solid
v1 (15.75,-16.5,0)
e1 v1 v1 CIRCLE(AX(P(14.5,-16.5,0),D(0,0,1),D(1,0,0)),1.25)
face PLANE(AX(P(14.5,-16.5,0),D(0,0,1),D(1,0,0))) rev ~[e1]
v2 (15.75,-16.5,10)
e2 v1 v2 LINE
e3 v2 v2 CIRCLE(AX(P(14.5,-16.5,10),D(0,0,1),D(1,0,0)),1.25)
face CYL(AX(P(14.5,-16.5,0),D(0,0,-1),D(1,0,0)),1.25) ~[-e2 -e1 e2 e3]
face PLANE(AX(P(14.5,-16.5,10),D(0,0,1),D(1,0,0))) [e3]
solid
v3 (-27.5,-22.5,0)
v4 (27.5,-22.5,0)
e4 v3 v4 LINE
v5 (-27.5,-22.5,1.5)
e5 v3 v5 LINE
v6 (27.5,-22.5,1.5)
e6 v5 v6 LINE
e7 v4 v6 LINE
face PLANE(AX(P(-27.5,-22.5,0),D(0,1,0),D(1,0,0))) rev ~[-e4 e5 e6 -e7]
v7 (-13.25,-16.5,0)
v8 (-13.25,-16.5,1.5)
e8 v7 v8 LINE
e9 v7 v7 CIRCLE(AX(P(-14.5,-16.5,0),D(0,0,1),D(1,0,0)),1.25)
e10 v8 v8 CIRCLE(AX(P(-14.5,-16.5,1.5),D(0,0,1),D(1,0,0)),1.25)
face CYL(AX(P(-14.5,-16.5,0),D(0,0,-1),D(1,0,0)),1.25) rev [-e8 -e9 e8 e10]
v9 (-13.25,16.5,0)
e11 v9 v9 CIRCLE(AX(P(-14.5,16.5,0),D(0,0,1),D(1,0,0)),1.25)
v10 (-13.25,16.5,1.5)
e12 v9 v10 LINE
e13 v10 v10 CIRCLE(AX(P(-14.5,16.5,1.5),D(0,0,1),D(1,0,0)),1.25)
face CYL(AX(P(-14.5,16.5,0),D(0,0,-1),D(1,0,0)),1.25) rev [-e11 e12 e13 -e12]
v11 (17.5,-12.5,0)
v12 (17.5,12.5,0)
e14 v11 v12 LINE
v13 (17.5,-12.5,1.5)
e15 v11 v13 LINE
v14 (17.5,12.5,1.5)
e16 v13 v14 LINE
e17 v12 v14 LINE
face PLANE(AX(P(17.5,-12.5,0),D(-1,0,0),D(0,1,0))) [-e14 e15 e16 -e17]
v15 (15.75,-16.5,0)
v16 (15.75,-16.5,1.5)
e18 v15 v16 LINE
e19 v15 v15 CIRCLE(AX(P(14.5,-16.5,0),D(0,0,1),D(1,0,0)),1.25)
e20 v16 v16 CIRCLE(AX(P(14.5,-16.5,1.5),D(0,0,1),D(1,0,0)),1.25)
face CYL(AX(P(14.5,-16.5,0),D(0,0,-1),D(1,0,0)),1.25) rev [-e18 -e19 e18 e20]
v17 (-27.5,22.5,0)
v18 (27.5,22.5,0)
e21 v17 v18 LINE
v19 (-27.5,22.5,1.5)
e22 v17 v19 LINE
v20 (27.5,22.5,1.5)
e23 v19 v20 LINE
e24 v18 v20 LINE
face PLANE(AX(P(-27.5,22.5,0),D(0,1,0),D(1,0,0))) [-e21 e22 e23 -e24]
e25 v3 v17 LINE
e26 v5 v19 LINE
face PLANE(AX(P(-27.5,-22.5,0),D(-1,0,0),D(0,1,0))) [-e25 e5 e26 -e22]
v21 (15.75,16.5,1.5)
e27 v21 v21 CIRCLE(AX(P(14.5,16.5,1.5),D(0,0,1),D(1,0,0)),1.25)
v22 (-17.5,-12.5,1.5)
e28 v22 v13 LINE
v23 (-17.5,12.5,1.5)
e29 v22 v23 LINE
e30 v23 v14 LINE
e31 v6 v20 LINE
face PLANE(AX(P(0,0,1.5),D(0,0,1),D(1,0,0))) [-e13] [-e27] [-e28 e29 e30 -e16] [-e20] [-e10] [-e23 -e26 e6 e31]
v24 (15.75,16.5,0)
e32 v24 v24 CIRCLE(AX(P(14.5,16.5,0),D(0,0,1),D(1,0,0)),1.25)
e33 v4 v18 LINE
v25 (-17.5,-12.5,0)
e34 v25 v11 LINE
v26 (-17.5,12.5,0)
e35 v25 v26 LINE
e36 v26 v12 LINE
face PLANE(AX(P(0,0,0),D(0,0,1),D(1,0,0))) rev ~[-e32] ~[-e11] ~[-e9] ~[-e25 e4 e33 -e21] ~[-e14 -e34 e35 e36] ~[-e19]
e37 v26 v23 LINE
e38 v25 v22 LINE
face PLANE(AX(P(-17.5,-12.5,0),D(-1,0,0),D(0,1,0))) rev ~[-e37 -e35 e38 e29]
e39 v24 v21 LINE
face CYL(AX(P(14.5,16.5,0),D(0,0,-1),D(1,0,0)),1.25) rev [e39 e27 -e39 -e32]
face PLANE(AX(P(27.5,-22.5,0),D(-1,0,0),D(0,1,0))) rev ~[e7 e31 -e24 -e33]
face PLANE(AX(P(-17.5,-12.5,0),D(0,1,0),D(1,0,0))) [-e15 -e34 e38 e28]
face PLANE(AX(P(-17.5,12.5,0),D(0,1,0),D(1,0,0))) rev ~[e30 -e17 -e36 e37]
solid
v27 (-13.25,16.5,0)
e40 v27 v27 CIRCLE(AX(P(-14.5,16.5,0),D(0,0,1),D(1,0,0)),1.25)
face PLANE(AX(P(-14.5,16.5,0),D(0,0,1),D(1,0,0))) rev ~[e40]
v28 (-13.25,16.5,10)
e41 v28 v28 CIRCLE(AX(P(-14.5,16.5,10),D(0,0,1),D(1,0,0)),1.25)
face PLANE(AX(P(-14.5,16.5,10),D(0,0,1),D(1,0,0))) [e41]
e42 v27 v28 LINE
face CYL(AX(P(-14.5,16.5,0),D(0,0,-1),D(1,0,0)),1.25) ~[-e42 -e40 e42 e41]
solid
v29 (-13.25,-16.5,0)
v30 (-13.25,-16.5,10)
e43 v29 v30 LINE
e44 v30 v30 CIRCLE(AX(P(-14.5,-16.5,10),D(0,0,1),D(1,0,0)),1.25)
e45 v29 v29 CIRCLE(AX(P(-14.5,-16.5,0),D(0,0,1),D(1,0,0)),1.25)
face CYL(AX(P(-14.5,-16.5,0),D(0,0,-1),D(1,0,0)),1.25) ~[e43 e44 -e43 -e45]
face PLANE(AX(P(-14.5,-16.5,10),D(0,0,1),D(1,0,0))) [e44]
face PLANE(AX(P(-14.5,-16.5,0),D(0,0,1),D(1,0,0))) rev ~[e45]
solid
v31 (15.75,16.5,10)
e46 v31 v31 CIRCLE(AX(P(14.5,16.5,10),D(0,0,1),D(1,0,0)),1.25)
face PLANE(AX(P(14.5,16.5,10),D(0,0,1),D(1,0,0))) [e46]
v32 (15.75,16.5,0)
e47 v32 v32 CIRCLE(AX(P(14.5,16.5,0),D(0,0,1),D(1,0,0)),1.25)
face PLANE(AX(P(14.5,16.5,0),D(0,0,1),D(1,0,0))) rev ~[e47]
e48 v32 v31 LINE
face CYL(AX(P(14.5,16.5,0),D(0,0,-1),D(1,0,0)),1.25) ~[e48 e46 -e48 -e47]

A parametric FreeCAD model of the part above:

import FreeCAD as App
import Part
import Sketcher
from FreeCAD import Vector

doc = App.newDocument("Part")
params = doc.addObject("Spreadsheet::Sheet", "Params")
for row, (alias, value) in enumerate([
    ("sketch1_diameter", "2.5 mm"),
    ("pad1_length", "10 mm"),
    ("sketch2_diameter", "2.5 mm"),
    ("sketch2_width", "55 mm"),
    ("sketch2_width2", "35 mm"),
    ("sketch2_height", "45 mm"),
    ("sketch2_height2", "25 mm"),
    ("pad2_length", "1.5 mm"),
], start=1):
    params.set(f"A{row}", alias)
    params.set(f"B{row}", "=" + value)
    params.setAlias(f"B{row}", alias)

body = doc.addObject("PartDesign::Body", "Body")
body.AllowCompound = True

# Sketch on XY plane
sketch1 = doc.addObject("Sketcher::SketchObject", "Sketch")
body.addObject(sketch1)
sketch1.AttachmentSupport = (doc.XY_Plane, [""])
sketch1.MapMode = "FlatFace"
sketch1.addGeometry(Part.Circle(Vector(-14.5, 16.5, 0), Vector(0, 0, 1), 1.2), False)
sketch1.addGeometry(Part.Circle(Vector(-14.5, -16.5, 0), Vector(0, 0, 1), 1.2), False)
sketch1.addGeometry(Part.Circle(Vector(14.5, -16.5, 0), Vector(0, 0, 1), 1.2), False)
sketch1.addGeometry(Part.Circle(Vector(14.5, 16.5, 0), Vector(0, 0, 1), 1.2), False)
sketch1.addConstraint(Sketcher.Constraint("Equal", 0, 1))
sketch1.addConstraint(Sketcher.Constraint("Equal", 1, 2))
sketch1.addConstraint(Sketcher.Constraint("Equal", 2, 3))
sketch1.addConstraint(Sketcher.Constraint("Symmetric", 0, 3, 2, 3, -1, 1))
sketch1.addConstraint(Sketcher.Constraint("Symmetric", 1, 3, 3, 3, -1, 1))
sketch1.addConstraint(Sketcher.Constraint("Symmetric", 1, 3, 2, 3, -2))
sketch1.addConstraint(Sketcher.Constraint("Diameter", 0, 2.5))
sketch1.addConstraint(Sketcher.Constraint("DistanceY", 1, 3, 0, 3, 33.0))
sketch1.addConstraint(Sketcher.Constraint("DistanceX", 1, 3, 2, 3, 29.0))
sketch1.setExpression("Constraints[6]", "Params.sketch1_diameter")
pad1 = doc.addObject("PartDesign::Pad", "Pad")
body.addObject(pad1)
pad1.Profile = sketch1
pad1.setExpression("Length", "Params.pad1_length")
body2 = doc.addObject("PartDesign::Body", "Body001")

# Sketch on XY plane
sketch2 = doc.addObject("Sketcher::SketchObject", "Sketch001")
body2.addObject(sketch2)
sketch2.AttachmentSupport = (doc.getObject("XY_Plane001"), [""])
sketch2.MapMode = "FlatFace"
sketch2.addGeometry(Part.LineSegment(Vector(-27.5, 22.5, 0), Vector(-27.5, -22.5, 0)), False)
sketch2.addGeometry(Part.LineSegment(Vector(-27.5, -22.5, 0), Vector(27.5, -22.5, 0)), False)
sketch2.addGeometry(Part.LineSegment(Vector(27.5, -22.5, 0), Vector(27.5, 22.5, 0)), False)
sketch2.addGeometry(Part.LineSegment(Vector(27.5, 22.5, 0), Vector(-27.5, 22.5, 0)), False)
sketch2.addGeometry(Part.Circle(Vector(-14.5, -16.5, 0), Vector(0, 0, 1), 1.2), False)
sketch2.addGeometry(Part.Circle(Vector(14.5, -16.5, 0), Vector(0, 0, 1), 1.2), False)
sketch2.addGeometry(Part.Circle(Vector(-14.5, 16.5, 0), Vector(0, 0, 1), 1.2), False)
sketch2.addGeometry(Part.LineSegment(Vector(17.5, -12.5, 0), Vector(-17.5, -12.5, 0)), False)
sketch2.addGeometry(Part.LineSegment(Vector(-17.5, -12.5, 0), Vector(-17.5, 12.5, 0)), False)
sketch2.addGeometry(Part.LineSegment(Vector(-17.5, 12.5, 0), Vector(17.5, 12.5, 0)), False)
sketch2.addGeometry(Part.LineSegment(Vector(17.5, 12.5, 0), Vector(17.5, -12.5, 0)), False)
sketch2.addGeometry(Part.Circle(Vector(14.5, 16.5, 0), Vector(0, 0, 1), 1.2), False)
sketch2.addConstraint(Sketcher.Constraint("Coincident", 0, 2, 1, 1))
sketch2.addConstraint(Sketcher.Constraint("Coincident", 1, 2, 2, 1))
sketch2.addConstraint(Sketcher.Constraint("Coincident", 2, 2, 3, 1))
sketch2.addConstraint(Sketcher.Constraint("Coincident", 3, 2, 0, 1))
sketch2.addConstraint(Sketcher.Constraint("Coincident", 7, 2, 8, 1))
sketch2.addConstraint(Sketcher.Constraint("Coincident", 8, 2, 9, 1))
sketch2.addConstraint(Sketcher.Constraint("Coincident", 9, 2, 10, 1))
sketch2.addConstraint(Sketcher.Constraint("Coincident", 10, 2, 7, 1))
sketch2.addConstraint(Sketcher.Constraint("Vertical", 0))
sketch2.addConstraint(Sketcher.Constraint("Horizontal", 1))
sketch2.addConstraint(Sketcher.Constraint("Vertical", 2))
sketch2.addConstraint(Sketcher.Constraint("Horizontal", 3))
sketch2.addConstraint(Sketcher.Constraint("Horizontal", 7))
sketch2.addConstraint(Sketcher.Constraint("Vertical", 8))
sketch2.addConstraint(Sketcher.Constraint("Horizontal", 9))
sketch2.addConstraint(Sketcher.Constraint("Vertical", 10))
sketch2.addConstraint(Sketcher.Constraint("Equal", 4, 5))
sketch2.addConstraint(Sketcher.Constraint("Equal", 5, 6))
sketch2.addConstraint(Sketcher.Constraint("Equal", 6, 11))
sketch2.addConstraint(Sketcher.Constraint("Symmetric", 5, 3, 6, 3, -1, 1))
sketch2.addConstraint(Sketcher.Constraint("Symmetric", 4, 3, 11, 3, -1, 1))
sketch2.addConstraint(Sketcher.Constraint("Symmetric", 0, 2, 2, 2, -1, 1))
sketch2.addConstraint(Sketcher.Constraint("Symmetric", 7, 2, 9, 2, -1, 1))
sketch2.addConstraint(Sketcher.Constraint("Symmetric", 4, 3, 5, 3, -2))
sketch2.addConstraint(Sketcher.Constraint("Diameter", 4, 2.5))
sketch2.addConstraint(Sketcher.Constraint("DistanceX", 1, 1, 1, 2, 55.0))
sketch2.addConstraint(Sketcher.Constraint("DistanceX", 7, 2, 7, 1, 35.0))
sketch2.addConstraint(Sketcher.Constraint("DistanceY", 0, 2, 0, 1, 45.0))
sketch2.addConstraint(Sketcher.Constraint("DistanceY", 8, 1, 8, 2, 25.0))
sketch2.addConstraint(Sketcher.Constraint("DistanceX", 4, 3, 5, 3, 29.0))
sketch2.addConstraint(Sketcher.Constraint("DistanceY", 4, 3, 6, 3, 33.0))
sketch2.setExpression("Constraints[24]", "Params.sketch2_diameter")
sketch2.setExpression("Constraints[25]", "Params.sketch2_width")
sketch2.setExpression("Constraints[26]", "Params.sketch2_width2")
sketch2.setExpression("Constraints[27]", "Params.sketch2_height")
sketch2.setExpression("Constraints[28]", "Params.sketch2_height2")
pad2 = doc.addObject("PartDesign::Pad", "Pad001")
body2.addObject(pad2)
pad2.Profile = sketch2
pad2.setExpression("Length", "Params.pad2_length")

doc.recompute()
